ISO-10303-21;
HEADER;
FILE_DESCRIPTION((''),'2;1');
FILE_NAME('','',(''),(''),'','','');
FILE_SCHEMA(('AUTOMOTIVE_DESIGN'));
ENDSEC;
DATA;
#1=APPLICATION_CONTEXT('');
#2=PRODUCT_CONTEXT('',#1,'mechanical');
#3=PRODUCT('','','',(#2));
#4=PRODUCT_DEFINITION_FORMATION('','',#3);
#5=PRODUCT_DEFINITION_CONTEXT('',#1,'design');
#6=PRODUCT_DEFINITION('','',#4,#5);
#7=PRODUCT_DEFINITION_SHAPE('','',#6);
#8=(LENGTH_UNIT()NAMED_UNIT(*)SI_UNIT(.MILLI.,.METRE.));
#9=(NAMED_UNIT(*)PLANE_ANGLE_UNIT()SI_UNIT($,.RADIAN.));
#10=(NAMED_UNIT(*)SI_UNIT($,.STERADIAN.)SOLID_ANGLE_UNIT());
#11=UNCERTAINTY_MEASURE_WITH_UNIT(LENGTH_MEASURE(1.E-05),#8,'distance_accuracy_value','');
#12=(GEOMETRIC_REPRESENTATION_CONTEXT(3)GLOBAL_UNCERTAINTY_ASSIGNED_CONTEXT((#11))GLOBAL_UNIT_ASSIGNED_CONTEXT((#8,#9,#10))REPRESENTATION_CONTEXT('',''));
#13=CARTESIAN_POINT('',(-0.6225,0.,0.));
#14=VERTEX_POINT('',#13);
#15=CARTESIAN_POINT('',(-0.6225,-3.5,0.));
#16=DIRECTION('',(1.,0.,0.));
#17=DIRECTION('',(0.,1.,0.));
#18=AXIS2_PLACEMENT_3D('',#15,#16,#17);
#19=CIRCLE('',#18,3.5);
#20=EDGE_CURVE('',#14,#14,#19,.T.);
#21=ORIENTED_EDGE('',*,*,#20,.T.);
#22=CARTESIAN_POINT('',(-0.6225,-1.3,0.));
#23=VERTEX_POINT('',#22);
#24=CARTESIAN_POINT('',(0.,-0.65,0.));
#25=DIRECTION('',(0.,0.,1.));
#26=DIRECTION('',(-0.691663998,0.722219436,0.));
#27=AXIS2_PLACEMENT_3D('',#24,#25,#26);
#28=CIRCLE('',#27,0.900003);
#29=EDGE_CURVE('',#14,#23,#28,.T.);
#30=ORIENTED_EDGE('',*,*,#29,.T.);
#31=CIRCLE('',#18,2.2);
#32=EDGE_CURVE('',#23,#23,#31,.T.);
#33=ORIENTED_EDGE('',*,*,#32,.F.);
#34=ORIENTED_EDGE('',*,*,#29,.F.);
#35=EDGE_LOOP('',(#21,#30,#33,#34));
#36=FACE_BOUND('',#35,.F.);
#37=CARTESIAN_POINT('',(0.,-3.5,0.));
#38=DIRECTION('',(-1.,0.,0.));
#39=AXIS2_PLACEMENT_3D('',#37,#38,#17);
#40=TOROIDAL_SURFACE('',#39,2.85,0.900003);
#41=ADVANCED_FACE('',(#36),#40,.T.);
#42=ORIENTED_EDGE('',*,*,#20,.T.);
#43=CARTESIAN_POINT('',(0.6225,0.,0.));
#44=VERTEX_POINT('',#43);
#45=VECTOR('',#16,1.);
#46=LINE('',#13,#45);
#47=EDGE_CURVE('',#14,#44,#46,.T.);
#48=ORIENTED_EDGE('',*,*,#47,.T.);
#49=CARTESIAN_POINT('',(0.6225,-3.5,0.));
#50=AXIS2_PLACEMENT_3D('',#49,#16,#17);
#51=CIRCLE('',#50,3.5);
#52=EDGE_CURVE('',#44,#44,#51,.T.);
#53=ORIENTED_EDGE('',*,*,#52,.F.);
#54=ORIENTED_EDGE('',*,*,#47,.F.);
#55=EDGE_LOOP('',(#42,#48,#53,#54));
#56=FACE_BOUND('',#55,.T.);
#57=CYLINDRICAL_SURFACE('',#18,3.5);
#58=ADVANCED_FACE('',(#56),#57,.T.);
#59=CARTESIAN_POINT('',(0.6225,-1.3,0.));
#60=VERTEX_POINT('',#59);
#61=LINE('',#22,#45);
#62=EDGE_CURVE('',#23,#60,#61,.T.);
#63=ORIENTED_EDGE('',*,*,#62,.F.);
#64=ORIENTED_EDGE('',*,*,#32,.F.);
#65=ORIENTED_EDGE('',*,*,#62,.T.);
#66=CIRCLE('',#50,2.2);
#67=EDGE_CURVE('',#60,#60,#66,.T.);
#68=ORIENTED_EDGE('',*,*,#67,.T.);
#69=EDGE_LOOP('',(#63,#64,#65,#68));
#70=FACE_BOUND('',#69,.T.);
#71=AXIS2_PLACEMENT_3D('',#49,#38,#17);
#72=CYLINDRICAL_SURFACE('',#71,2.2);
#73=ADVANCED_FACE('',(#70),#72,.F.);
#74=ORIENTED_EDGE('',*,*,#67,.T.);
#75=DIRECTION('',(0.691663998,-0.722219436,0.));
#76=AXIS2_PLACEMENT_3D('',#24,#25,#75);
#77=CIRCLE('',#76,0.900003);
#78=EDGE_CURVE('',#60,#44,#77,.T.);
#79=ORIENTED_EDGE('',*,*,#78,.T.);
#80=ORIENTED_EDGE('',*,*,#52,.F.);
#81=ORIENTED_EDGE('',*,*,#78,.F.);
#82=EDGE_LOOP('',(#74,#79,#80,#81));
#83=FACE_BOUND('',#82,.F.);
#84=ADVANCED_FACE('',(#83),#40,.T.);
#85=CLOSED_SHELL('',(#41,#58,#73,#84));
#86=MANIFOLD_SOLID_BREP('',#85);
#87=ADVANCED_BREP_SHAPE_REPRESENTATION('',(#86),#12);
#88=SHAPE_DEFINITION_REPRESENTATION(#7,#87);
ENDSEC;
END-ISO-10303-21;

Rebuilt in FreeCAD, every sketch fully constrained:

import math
import FreeCAD as App
import Part
import Sketcher

V = App.Vector

doc = App.newDocument("Part")
body = doc.addObject("PartDesign::Body", "Body")

sketch1 = body.newObject("Sketcher::SketchObject", "Sketch")
sketch1.AttachmentSupport = (doc.getObject("XY_Plane"), [""])
sketch1.MapMode = "FlatFace"
sketch1.addGeometry([
    Part.ArcOfCircle(Part.Circle(V(0, -0.7, 0), V(0, 0, 1), 0.9), math.radians(134), math.radians(226)),
    Part.LineSegment(V(-0.6, -1.3, 0), V(0.6, -1.3, 0)),
    Part.ArcOfCircle(Part.Circle(V(0, -0.7, 0), V(0, 0, 1), 0.9), math.radians(-46), math.radians(46)),
    Part.LineSegment(V(0.6, 0, 0), V(-0.6, 0, 0)),
], False)
sketch1.addGeometry(Part.LineSegment(V(-0.6, -3.5, 0), V(0.6, -3.5, 0)), True)
sketch1.addConstraint([
    Sketcher.Constraint("Coincident", 0, 2, 1, 1),
    Sketcher.Constraint("Coincident", 1, 2, 2, 1),
    Sketcher.Constraint("Coincident", 2, 2, 3, 1),
    Sketcher.Constraint("Coincident", 3, 2, 0, 1),
    Sketcher.Constraint("Horizontal", 1),
    Sketcher.Constraint("Horizontal", 3),
    Sketcher.Constraint("Horizontal", 4),
    Sketcher.Constraint("Coincident", 2, 3, 0, 3),
    Sketcher.Constraint("Equal", 0, 2),
    Sketcher.Constraint("Symmetric", 2, 2, 3, 2, -1, 1),
    Sketcher.Constraint("Vertical", 1, 2, 2, 2),
    Sketcher.Constraint("Vertical", 3, 2, 4, 1),
    Sketcher.Constraint("Vertical", 2, 2, 4, 2),
    Sketcher.Constraint("Radius", 0, 0.9),
    Sketcher.Constraint("DistanceY", 0, 3, -1, 1, 0.65),
    Sketcher.Constraint("DistanceY", 4, 1, -1, 1, 3.5),
])
revolution = body.newObject("PartDesign::Revolution", "Revolution")
revolution.Profile = sketch1
revolution.ReferenceAxis = (sketch1, ["Axis0"])
revolution.Angle = 360

doc.recompute()
